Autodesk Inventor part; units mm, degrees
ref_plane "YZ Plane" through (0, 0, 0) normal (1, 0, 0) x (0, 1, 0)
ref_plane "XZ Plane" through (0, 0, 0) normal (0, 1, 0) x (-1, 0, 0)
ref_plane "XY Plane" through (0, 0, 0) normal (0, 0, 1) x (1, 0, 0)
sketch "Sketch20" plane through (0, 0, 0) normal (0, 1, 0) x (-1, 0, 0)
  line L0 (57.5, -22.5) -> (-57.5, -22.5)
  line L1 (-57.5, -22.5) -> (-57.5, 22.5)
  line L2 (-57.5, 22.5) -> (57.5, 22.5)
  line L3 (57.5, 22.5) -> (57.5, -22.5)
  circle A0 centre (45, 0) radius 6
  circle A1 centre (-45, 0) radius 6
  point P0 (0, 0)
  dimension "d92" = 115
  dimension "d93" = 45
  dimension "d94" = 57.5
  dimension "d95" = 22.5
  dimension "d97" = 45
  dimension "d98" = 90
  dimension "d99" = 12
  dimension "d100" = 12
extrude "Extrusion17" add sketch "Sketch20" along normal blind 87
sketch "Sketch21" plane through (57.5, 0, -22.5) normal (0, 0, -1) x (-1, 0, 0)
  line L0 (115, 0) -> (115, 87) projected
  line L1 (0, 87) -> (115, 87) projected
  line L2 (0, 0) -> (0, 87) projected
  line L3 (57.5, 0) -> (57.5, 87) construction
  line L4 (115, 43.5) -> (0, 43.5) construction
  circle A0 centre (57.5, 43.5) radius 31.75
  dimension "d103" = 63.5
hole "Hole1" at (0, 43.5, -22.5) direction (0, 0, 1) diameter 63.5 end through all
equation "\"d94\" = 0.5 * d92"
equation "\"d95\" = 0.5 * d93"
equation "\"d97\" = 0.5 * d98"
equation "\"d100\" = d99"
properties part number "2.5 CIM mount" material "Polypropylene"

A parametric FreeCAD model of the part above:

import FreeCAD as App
import Part
import Sketcher

V = App.Vector


def add_polygon(sketch, points):
    """Adds a closed chain of lines whose ends are joined by coincident constraints."""
    first, n = sketch.GeometryCount, len(points)
    for a, b in zip(points, points[1:] + points[:1]):
        sketch.addGeometry(Part.LineSegment(App.Vector(*a, 0), App.Vector(*b, 0)), False)
    for i in range(n):
        sketch.addConstraint(Sketcher.Constraint("Coincident", first + i, 2, first + (i + 1) % n, 1))

doc = App.newDocument("Part")
params = doc.addObject("Spreadsheet::Sheet", "Params")
for row, (alias, value) in enumerate([
    ("sketch1_diameter", "12 mm"),
    ("sketch1_width", "115 mm"),
    ("sketch1_height", "45 mm"),
    ("pad1_length", "87 mm"),
    ("sketch2_diameter", "63.5 mm"),
    ("hole_diameter", "63.5 mm"),
], start=1):
    params.set(f"A{row}", alias)
    params.set(f"B{row}", "=" + value)
    params.setAlias(f"B{row}", alias)

body = doc.addObject("PartDesign::Body", "Body")

# Sketch on XZ plane
sketch1 = doc.addObject("Sketcher::SketchObject", "Sketch")
body.addObject(sketch1)
sketch1.AttachmentSupport = (doc.XZ_Plane, [""])
sketch1.MapMode = "FlatFace"
add_polygon(sketch1, [(58, -22), (-58, -22), (-58, 22), (58, 22)])  # lines 0-3
sketch1.addGeometry(Part.Circle(V(45, 0, 0), V(0, 0, 1), 6), False)  # 4
sketch1.addGeometry(Part.Circle(V(-45, 0, 0), V(0, 0, 1), 6), False)  # 5
sketch1.addConstraint([
    Sketcher.Constraint("Horizontal", 0),
    Sketcher.Constraint("Vertical", 1),
    Sketcher.Constraint("Horizontal", 2),
    Sketcher.Constraint("Vertical", 3),
    Sketcher.Constraint("Equal", 4, 5),
    Sketcher.Constraint("Symmetric", 4, 3, 5, 3, -1, 1),
    Sketcher.Constraint("Symmetric", 0, 2, 2, 2, -1, 1),
    Sketcher.Constraint("PointOnObject", 4, 3, -1),
    Sketcher.Constraint("Diameter", 4, 12.0),
    Sketcher.Constraint("DistanceX", 0, 2, 0, 1, 115.0),
    Sketcher.Constraint("DistanceY", 1, 1, 1, 2, 45.0),
    Sketcher.Constraint("DistanceX", -1, 1, 4, 3, 45.0),
])
sketch1.setExpression("Constraints[12]", "Params.sketch1_diameter")
sketch1.setExpression("Constraints[13]", "Params.sketch1_width")
sketch1.setExpression("Constraints[14]", "Params.sketch1_height")
pad1 = doc.addObject("PartDesign::Pad", "Pad")
body.addObject(pad1)
pad1.Profile = sketch1
pad1.setExpression("Length", "Params.pad1_length")
pad1.Reversed = True

# Sketch on XY plane
sketch2 = doc.addObject("Sketcher::SketchObject", "Sketch001")
body.addObject(sketch2)
sketch2.AttachmentSupport = (doc.XY_Plane, [""])
sketch2.MapMode = "FlatFace"
sketch2.AttachmentOffset = App.Placement(V(0, 0, -22.5), App.Rotation())
sketch2.addGeometry(Part.Circle(V(0, 44, 0), V(0, 0, 1), 32), False)
sketch2.addConstraint([
    Sketcher.Constraint("PointOnObject", 0, 3, -2),
    Sketcher.Constraint("Diameter", 0, 63.5),
    Sketcher.Constraint("DistanceY", -1, 1, 0, 3, 43.5),
])
sketch2.setExpression("Constraints[1]", "Params.sketch2_diameter")
doc.recompute()
hole = doc.addObject("PartDesign::Hole", "Hole")
body.addObject(hole)
hole.Profile = sketch2
hole.ThreadType = "None"
hole.setExpression("Diameter", "Params.hole_diameter")
hole.DepthType = "ThroughAll"
hole.Reversed = True

doc.recompute()
